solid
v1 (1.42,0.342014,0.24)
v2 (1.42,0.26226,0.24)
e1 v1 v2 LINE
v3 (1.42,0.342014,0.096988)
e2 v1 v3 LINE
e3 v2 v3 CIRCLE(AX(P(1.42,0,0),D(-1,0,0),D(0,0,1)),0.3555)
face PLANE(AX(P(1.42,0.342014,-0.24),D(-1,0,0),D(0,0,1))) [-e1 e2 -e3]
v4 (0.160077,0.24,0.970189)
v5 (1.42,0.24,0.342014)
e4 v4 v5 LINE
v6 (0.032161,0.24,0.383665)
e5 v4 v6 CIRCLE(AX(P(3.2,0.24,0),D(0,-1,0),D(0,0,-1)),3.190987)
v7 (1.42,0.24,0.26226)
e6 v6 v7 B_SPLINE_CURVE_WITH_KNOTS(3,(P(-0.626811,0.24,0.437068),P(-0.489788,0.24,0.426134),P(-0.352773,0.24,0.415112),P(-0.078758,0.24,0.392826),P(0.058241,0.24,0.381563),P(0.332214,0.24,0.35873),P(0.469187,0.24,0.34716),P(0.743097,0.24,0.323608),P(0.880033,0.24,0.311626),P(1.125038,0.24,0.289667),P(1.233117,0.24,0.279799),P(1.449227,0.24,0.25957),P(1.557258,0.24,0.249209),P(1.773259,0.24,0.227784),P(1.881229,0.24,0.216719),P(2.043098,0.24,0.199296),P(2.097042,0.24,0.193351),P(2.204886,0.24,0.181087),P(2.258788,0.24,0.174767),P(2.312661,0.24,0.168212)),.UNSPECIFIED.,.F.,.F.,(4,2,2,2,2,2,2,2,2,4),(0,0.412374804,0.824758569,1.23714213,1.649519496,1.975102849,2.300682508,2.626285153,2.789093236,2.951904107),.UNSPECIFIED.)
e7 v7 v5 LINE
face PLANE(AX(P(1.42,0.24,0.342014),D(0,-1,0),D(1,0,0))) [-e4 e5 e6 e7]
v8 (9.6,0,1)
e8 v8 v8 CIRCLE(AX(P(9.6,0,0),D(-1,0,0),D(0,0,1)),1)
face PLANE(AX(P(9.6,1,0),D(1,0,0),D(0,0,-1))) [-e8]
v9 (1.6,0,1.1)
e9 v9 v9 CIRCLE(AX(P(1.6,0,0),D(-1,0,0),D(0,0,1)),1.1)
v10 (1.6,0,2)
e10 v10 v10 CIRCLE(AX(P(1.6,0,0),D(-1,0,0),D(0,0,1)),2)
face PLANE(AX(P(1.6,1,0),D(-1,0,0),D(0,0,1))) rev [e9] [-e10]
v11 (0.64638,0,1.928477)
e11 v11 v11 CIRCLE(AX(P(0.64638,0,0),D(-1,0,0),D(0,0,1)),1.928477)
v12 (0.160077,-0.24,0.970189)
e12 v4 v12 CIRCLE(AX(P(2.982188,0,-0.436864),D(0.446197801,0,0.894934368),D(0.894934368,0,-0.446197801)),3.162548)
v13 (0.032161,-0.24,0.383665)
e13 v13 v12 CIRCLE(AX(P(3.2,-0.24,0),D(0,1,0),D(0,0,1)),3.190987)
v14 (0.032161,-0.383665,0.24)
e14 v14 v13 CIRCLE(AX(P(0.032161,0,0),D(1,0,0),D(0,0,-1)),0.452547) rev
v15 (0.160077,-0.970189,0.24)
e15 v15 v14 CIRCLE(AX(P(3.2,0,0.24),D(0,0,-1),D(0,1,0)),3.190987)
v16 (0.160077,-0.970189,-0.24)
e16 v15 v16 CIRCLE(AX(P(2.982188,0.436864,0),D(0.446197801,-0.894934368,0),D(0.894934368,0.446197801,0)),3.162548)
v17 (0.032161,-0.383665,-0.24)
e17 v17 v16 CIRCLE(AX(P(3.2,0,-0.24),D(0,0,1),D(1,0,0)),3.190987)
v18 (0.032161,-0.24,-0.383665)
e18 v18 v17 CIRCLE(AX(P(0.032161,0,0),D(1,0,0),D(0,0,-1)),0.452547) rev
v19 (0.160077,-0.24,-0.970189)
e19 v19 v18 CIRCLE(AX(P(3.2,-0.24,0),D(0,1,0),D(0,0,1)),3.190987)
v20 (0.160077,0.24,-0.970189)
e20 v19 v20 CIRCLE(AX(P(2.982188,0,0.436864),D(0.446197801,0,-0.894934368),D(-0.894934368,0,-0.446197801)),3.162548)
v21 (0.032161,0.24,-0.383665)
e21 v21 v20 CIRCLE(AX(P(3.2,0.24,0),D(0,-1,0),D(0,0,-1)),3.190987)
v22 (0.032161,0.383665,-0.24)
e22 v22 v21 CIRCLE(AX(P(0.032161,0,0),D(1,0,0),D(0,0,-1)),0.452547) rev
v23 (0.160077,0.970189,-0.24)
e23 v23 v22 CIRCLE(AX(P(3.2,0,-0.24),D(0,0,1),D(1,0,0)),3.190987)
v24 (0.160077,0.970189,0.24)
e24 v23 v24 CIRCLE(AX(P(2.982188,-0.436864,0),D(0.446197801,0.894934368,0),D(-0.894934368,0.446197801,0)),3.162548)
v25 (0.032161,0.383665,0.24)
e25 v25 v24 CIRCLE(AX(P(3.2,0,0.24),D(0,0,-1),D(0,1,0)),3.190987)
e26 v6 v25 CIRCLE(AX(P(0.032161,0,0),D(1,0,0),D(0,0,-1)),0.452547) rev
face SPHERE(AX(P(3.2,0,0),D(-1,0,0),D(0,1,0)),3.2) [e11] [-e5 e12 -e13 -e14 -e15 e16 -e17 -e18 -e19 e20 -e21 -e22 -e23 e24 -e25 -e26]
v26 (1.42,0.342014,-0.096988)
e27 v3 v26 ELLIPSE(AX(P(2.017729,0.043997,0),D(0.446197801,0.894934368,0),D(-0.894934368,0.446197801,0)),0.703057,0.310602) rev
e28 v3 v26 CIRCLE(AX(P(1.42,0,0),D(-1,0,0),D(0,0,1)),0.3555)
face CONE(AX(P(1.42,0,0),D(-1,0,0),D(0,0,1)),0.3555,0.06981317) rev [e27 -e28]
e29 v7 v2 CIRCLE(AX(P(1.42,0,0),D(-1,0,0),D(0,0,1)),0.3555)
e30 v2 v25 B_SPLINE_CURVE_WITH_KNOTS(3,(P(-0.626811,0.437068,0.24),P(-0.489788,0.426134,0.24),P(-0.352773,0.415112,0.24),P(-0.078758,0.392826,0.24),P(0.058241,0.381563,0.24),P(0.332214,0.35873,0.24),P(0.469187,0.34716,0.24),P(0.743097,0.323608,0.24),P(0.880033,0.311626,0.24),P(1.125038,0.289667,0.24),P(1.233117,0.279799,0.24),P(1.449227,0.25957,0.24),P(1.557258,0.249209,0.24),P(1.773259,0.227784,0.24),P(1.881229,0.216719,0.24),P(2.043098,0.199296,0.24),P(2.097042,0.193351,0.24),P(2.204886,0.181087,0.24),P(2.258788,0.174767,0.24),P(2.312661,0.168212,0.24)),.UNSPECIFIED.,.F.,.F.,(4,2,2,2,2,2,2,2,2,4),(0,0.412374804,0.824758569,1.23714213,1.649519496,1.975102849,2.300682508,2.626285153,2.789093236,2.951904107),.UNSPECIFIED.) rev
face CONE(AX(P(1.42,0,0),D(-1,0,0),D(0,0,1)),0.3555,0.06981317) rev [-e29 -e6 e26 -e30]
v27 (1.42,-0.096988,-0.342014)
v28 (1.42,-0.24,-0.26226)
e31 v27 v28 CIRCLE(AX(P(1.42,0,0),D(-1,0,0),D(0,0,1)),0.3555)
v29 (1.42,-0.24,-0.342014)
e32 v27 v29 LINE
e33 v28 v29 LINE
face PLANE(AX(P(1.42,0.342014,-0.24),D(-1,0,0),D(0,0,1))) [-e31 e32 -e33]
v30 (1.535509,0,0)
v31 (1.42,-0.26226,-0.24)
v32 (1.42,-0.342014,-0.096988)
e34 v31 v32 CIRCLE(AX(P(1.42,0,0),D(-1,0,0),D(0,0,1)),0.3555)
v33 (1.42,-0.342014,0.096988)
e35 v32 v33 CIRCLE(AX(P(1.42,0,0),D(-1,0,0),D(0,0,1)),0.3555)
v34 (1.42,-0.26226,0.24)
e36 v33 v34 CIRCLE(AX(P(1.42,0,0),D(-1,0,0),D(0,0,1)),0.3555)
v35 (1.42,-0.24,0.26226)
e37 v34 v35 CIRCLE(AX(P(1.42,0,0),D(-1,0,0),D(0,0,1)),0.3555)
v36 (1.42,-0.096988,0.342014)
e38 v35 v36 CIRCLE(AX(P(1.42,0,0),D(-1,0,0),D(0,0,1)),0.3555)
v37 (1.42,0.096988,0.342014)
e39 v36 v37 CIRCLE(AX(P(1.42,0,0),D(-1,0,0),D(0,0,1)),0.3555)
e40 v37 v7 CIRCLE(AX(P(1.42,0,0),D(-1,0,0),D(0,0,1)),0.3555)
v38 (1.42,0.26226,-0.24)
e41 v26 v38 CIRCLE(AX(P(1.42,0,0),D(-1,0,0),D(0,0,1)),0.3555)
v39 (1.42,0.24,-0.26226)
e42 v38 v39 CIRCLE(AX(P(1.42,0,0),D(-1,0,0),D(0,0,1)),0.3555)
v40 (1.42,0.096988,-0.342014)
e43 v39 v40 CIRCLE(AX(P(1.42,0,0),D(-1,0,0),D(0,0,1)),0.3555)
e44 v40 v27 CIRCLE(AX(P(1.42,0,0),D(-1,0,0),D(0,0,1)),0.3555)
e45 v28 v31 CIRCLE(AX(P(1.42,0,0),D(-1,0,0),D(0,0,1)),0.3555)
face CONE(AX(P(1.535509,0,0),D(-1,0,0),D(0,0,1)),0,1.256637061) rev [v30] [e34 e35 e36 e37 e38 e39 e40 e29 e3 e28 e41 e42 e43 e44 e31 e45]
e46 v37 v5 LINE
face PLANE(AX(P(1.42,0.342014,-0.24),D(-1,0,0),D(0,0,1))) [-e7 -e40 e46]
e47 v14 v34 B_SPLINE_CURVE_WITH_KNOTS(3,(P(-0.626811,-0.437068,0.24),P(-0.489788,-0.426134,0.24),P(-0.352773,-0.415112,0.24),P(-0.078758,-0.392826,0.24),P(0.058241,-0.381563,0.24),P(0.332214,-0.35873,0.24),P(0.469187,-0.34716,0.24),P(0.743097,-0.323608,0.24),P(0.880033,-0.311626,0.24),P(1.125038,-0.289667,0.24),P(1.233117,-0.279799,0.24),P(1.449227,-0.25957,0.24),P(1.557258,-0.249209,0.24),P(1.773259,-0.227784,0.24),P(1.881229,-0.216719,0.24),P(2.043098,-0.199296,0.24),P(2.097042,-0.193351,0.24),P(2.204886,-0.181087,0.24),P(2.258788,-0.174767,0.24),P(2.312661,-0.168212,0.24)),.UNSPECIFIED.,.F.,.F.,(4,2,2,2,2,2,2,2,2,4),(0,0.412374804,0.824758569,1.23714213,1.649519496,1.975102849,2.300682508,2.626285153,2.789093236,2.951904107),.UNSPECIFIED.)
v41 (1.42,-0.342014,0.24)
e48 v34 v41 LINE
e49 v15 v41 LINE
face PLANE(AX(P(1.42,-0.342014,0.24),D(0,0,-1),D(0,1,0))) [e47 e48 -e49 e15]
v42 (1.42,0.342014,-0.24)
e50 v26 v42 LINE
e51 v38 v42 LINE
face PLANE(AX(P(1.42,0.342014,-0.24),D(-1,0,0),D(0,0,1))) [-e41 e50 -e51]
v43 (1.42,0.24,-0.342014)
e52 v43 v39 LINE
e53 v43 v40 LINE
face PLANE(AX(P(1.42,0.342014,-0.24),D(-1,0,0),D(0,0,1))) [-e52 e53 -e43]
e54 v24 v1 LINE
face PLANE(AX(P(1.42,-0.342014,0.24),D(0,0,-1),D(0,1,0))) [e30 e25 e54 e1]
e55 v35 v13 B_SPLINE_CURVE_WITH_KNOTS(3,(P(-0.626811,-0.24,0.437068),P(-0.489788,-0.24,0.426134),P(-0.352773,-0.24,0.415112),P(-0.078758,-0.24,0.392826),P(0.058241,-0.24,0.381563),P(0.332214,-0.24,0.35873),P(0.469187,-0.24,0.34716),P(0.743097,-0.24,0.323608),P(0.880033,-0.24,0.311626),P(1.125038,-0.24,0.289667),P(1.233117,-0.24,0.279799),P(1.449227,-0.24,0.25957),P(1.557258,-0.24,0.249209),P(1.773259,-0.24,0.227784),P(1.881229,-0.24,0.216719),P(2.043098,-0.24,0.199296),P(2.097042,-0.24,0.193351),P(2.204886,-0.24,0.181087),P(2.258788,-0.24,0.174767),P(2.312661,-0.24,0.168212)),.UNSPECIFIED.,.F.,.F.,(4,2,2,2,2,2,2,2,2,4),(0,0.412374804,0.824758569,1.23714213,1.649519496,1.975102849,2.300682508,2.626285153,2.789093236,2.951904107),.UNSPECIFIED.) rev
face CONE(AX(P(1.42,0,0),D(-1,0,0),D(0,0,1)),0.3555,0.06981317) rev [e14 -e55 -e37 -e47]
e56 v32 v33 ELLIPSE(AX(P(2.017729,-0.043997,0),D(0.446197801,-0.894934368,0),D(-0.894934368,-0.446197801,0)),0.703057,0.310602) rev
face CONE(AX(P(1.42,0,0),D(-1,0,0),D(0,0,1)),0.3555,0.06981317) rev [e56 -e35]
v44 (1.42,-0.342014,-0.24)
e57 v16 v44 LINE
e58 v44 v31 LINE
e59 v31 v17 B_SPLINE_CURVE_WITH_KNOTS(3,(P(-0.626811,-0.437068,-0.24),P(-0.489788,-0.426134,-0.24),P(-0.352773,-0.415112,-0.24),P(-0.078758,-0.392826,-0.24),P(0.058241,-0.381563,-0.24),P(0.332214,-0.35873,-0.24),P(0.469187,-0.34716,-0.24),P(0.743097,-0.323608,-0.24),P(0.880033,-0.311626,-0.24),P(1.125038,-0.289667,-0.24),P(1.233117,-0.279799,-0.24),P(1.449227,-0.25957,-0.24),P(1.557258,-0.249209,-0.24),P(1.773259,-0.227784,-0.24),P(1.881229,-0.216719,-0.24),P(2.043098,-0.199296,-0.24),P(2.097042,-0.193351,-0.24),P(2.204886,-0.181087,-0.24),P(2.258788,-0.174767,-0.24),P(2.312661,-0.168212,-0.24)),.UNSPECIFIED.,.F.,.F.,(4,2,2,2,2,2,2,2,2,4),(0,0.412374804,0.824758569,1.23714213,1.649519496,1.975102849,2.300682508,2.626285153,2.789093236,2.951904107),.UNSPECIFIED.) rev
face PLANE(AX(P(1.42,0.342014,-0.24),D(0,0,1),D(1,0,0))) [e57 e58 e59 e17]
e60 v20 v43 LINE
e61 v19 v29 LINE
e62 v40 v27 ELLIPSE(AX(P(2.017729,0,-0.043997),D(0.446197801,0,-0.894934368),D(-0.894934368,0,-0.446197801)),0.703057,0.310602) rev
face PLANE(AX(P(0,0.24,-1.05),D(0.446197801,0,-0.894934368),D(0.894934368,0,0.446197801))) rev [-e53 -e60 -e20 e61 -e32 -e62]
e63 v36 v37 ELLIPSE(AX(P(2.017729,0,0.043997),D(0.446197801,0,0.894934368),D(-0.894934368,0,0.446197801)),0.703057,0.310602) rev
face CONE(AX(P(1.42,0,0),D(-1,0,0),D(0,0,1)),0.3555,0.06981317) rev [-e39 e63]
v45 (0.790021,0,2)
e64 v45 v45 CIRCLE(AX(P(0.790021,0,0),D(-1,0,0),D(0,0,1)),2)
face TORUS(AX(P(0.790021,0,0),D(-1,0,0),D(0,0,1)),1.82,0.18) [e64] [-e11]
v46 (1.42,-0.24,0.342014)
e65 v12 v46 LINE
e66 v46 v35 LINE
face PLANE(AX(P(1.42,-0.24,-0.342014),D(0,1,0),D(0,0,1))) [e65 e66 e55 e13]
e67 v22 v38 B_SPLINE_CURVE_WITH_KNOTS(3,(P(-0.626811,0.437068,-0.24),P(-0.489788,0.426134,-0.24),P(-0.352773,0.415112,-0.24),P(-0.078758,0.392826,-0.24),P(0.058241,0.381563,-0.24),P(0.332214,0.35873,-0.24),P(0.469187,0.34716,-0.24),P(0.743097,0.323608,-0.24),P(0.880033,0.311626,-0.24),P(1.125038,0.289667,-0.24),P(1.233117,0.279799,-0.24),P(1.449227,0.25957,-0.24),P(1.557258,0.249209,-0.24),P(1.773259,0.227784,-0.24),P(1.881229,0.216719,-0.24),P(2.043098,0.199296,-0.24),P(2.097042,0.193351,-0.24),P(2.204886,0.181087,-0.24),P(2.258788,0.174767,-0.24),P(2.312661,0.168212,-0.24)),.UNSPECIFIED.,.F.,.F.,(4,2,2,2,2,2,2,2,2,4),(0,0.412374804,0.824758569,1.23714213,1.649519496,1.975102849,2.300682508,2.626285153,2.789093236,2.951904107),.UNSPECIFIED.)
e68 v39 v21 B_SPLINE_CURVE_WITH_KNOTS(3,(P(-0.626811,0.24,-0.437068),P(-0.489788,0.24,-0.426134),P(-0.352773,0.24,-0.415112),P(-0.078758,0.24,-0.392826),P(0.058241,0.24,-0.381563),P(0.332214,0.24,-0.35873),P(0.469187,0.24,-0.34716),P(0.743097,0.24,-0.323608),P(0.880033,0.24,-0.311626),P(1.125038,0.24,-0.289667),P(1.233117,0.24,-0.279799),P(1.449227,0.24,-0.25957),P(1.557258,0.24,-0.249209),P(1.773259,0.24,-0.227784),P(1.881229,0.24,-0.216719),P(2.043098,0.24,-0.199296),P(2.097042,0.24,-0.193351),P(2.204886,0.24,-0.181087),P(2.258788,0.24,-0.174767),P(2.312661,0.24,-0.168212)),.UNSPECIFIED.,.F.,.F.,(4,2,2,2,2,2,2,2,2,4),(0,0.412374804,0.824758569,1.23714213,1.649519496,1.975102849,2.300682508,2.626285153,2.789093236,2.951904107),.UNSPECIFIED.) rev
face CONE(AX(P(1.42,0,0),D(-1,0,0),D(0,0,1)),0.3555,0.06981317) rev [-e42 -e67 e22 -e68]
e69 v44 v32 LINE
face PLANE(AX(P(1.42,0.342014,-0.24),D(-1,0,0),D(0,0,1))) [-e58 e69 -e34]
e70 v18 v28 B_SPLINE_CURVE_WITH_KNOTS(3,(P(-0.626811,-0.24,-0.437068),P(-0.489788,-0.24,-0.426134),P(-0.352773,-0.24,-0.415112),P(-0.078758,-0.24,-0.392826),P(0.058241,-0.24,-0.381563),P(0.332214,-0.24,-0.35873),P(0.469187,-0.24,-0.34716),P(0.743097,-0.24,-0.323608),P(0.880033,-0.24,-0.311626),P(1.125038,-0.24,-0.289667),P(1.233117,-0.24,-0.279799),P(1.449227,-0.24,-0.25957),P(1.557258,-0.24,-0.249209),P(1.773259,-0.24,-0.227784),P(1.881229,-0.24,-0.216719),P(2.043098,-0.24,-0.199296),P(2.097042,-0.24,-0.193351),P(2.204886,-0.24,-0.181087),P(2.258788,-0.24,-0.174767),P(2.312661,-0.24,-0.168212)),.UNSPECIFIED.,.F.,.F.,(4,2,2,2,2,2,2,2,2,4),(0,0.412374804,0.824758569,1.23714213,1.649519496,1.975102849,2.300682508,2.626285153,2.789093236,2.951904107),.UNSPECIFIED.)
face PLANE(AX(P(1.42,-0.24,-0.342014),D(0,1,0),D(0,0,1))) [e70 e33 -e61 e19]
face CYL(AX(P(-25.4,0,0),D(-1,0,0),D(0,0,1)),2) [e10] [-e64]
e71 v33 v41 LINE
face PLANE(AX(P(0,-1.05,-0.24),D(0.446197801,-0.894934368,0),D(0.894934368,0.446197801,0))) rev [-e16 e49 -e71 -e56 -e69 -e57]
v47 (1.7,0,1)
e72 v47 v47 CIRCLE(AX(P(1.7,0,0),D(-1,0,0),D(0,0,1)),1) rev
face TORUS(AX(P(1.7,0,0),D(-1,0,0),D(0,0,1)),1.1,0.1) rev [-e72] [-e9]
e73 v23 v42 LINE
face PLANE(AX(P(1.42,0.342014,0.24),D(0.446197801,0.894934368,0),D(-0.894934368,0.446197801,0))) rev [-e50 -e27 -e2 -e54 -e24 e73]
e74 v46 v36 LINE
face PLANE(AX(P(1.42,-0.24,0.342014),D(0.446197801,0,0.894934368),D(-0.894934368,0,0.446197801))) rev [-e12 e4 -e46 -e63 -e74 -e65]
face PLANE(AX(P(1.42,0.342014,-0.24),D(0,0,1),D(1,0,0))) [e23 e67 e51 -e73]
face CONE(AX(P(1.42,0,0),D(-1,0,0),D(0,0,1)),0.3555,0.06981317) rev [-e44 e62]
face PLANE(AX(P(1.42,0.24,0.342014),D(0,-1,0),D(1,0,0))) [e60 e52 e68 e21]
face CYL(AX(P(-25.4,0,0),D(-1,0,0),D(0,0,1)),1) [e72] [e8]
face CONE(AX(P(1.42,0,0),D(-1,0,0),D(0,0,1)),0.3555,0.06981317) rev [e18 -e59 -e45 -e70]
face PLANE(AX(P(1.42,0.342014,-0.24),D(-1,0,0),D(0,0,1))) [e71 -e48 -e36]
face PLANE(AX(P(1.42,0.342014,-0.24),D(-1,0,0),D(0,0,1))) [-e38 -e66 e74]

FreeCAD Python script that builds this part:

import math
import FreeCAD as App
import Part
import Sketcher
Q = App.Units.Quantity


def edges_at(feature, points):
    """Names of the edges that pass closest to the given points."""
    edges = feature.Shape.Edges
    near = lambda p: min(range(len(edges)), key=lambda i: edges[i].distToShape(Part.Vertex(*p))[0])
    return sorted({f"Edge{near(p) + 1}" for p in points})

doc = App.newDocument("Part")
body = doc.addObject("PartDesign::Body", "Body")

sketch1 = body.newObject("Sketcher::SketchObject", "Sketch")
sketch1.AttachmentSupport = (doc.getObject("XY_Plane"), [""])
sketch1.MapMode = "FlatFace"
sketch1.addGeometry(Part.LineSegment(App.Vector(1.6, 1, 0), App.Vector(1.6, 2, 0)), False)
sketch1.addGeometry(Part.LineSegment(App.Vector(1.6, 2, 0), App.Vector(0.790021, 2, 0)), False)
sketch1.addGeometry(Part.ArcOfCircle(Part.Circle(App.Vector(0.790021, 1.82, 0), App.Vector(0, 0, 1), 0.18), math.radians(90), math.radians(142.940145)), False)
sketch1.addGeometry(Part.ArcOfCircle(Part.Circle(App.Vector(3.2, 0, 0), App.Vector(0, 0, 1), 3.2), math.radians(142.940145), math.radians(180)), False)
sketch1.addGeometry(Part.LineSegment(App.Vector(0, 0, 0), App.Vector(9.6, 0, 0)), False)
sketch1.addGeometry(Part.LineSegment(App.Vector(9.6, 0, 0), App.Vector(9.6, 1, 0)), False)
sketch1.addGeometry(Part.LineSegment(App.Vector(9.6, 1, 0), App.Vector(1.6, 1, 0)), False)
sketch1.addConstraint(Sketcher.Constraint("Coincident", 0, 2, 1, 1))
sketch1.addConstraint(Sketcher.Constraint("Tangent", 1, 2, 2, 1))
sketch1.addConstraint(Sketcher.Constraint("Tangent", 2, 2, 3, 1))
sketch1.addConstraint(Sketcher.Constraint("Coincident", 3, 2, 4, 1))
sketch1.addConstraint(Sketcher.Constraint("Coincident", 4, 2, 5, 1))
sketch1.addConstraint(Sketcher.Constraint("Coincident", 5, 2, 6, 1))
sketch1.addConstraint(Sketcher.Constraint("Coincident", 6, 2, 0, 1))
sketch1.addConstraint(Sketcher.Constraint("Vertical", 0))
sketch1.addConstraint(Sketcher.Constraint("Horizontal", 1))
sketch1.addConstraint(Sketcher.Constraint("Horizontal", 4))
sketch1.addConstraint(Sketcher.Constraint("Vertical", 5))
sketch1.addConstraint(Sketcher.Constraint("Horizontal", 6))
sketch1.addConstraint(Sketcher.Constraint("Coincident", 3, 2, -1, 1))
sketch1.addConstraint(Sketcher.Constraint("PointOnObject", 3, 3, -1))
sketch1.addConstraint(Sketcher.Constraint("Equal", 0, 5))
sketch1.addConstraint(Sketcher.Constraint("Radius", 3, Q("3.2 mm")))
sketch1.addConstraint(Sketcher.Constraint("DistanceX", 6, 2, 6, 1, Q("8 mm")))
sketch1.addConstraint(Sketcher.Constraint("DistanceY", 0, 1, 0, 2, Q("1 mm")))
sketch1.addConstraint(Sketcher.Constraint("Radius", 2, Q("0.18 mm")))
sketch1.addConstraint(Sketcher.Constraint("DistanceX", 4, 1, 4, 2, Q("9.6 mm")))
revolution = body.newObject("PartDesign::Revolution", "Revolution")
revolution.Profile = sketch1
revolution.ReferenceAxis = (sketch1, ["H_Axis"])
revolution.Angle = 360
doc.recompute()

fillet = body.newObject("PartDesign::Fillet", "Fillet")
fillet.Base = (revolution, edges_at(revolution, [(1.6, 0, -1)]))
fillet.Radius = 0.1

sketch2 = body.newObject("Sketcher::SketchObject", "Sketch001")
sketch2.AttachmentSupport = (doc.getObject("YZ_Plane"), [""])
sketch2.MapMode = "FlatFace"
sketch2.addGeometry(Part.LineSegment(App.Vector(1.05, 0.24, 0), App.Vector(-1.05, 0.24, 0)), False)
sketch2.addGeometry(Part.LineSegment(App.Vector(-1.05, 0.24, 0), App.Vector(-1.05, -0.24, 0)), False)
sketch2.addGeometry(Part.LineSegment(App.Vector(-1.05, -0.24, 0), App.Vector(1.05, -0.24, 0)), False)
sketch2.addGeometry(Part.LineSegment(App.Vector(1.05, -0.24, 0), App.Vector(1.05, 0.24, 0)), False)
sketch2.addConstraint(Sketcher.Constraint("Coincident", 0, 2, 1, 1))
sketch2.addConstraint(Sketcher.Constraint("Coincident", 1, 2, 2, 1))
sketch2.addConstraint(Sketcher.Constraint("Coincident", 2, 2, 3, 1))
sketch2.addConstraint(Sketcher.Constraint("Coincident", 3, 2, 0, 1))
sketch2.addConstraint(Sketcher.Constraint("Horizontal", 0))
sketch2.addConstraint(Sketcher.Constraint("Vertical", 1))
sketch2.addConstraint(Sketcher.Constraint("Horizontal", 2))
sketch2.addConstraint(Sketcher.Constraint("Vertical", 3))
sketch2.addConstraint(Sketcher.Constraint("Symmetric", 0, 2, 2, 2, -1, 1))
sketch2.addConstraint(Sketcher.Constraint("DistanceX", 0, 2, 0, 1, Q("2.1 mm")))
sketch2.addConstraint(Sketcher.Constraint("DistanceY", 1, 2, 1, 1, Q("0.48 mm")))

sketch3 = body.newObject("Sketcher::SketchObject", "Sketch002")
sketch3.AttachmentSupport = (doc.getObject("YZ_Plane"), [""])
sketch3.MapMode = "FlatFace"
sketch3.AttachmentOffset = App.Placement(App.Vector(0, 0, 1.42), App.Rotation())
sketch3.addGeometry(Part.LineSegment(App.Vector(0.342014, 0.24, 0), App.Vector(-0.342014, 0.24, 0)), False)
sketch3.addGeometry(Part.LineSegment(App.Vector(-0.342014, 0.24, 0), App.Vector(-0.342014, -0.24, 0)), False)
sketch3.addGeometry(Part.LineSegment(App.Vector(-0.342014, -0.24, 0), App.Vector(0.342014, -0.24, 0)), False)
sketch3.addGeometry(Part.LineSegment(App.Vector(0.342014, -0.24, 0), App.Vector(0.342014, 0.24, 0)), False)
sketch3.addConstraint(Sketcher.Constraint("Coincident", 0, 2, 1, 1))
sketch3.addConstraint(Sketcher.Constraint("Coincident", 1, 2, 2, 1))
sketch3.addConstraint(Sketcher.Constraint("Coincident", 2, 2, 3, 1))
sketch3.addConstraint(Sketcher.Constraint("Coincident", 3, 2, 0, 1))
sketch3.addConstraint(Sketcher.Constraint("Horizontal", 0))
sketch3.addConstraint(Sketcher.Constraint("Vertical", 1))
sketch3.addConstraint(Sketcher.Constraint("Horizontal", 2))
sketch3.addConstraint(Sketcher.Constraint("Vertical", 3))
sketch3.addConstraint(Sketcher.Constraint("Symmetric", 0, 2, 2, 2, -1, 1))
sketch3.addConstraint(Sketcher.Constraint("DistanceY", 1, 2, 1, 1, Q("0.48 mm")))
sketch3.addConstraint(Sketcher.Constraint("DistanceX", 0, 2, 0, 1, Q("0.684028 mm")))

subtractiveloft = body.newObject("PartDesign::SubtractiveLoft", "SubtractiveLoft")
subtractiveloft.Profile = sketch2
subtractiveloft.Sections = [sketch3]
doc.recompute()

polarpattern = body.newObject("PartDesign::PolarPattern", "PolarPattern")
polarpattern.Originals = [subtractiveloft]
polarpattern.Axis = (doc.getObject("X_Axis"), [""])
polarpattern.Angle = 90
polarpattern.Occurrences = 2
body.Tip = polarpattern

sketch4 = body.newObject("Sketcher::SketchObject", "Sketch003")
sketch4.AttachmentSupport = (doc.getObject("XY_Plane"), [""])
sketch4.MapMode = "FlatFace"
sketch4.addGeometry(Part.LineSegment(App.Vector(0, 0.454796, 0), App.Vector(0, 0, 0)), False)
sketch4.addGeometry(Part.LineSegment(App.Vector(0, 0, 0), App.Vector(1.535509, 0, 0)), False)
sketch4.addGeometry(Part.LineSegment(App.Vector(1.535509, 0, 0), App.Vector(1.42, 0.3555, 0)), False)
sketch4.addGeometry(Part.LineSegment(App.Vector(1.42, 0.3555, 0), App.Vector(0, 0.454796, 0)), False)
sketch4.addConstraint(Sketcher.Constraint("Coincident", 0, 2, 1, 1))
sketch4.addConstraint(Sketcher.Constraint("Coincident", 1, 2, 2, 1))
sketch4.addConstraint(Sketcher.Constraint("Coincident", 2, 2, 3, 1))
sketch4.addConstraint(Sketcher.Constraint("Coincident", 3, 2, 0, 1))
sketch4.addConstraint(Sketcher.Constraint("Vertical", 0))
sketch4.addConstraint(Sketcher.Constraint("Horizontal", 1))
sketch4.addConstraint(Sketcher.Constraint("Coincident", 0, 2, -1, 1))
sketch4.addConstraint(Sketcher.Constraint("Angle", 2, Q("108 deg")))
sketch4.addConstraint(Sketcher.Constraint("Angle", 3, Q("176 deg")))
sketch4.addConstraint(Sketcher.Constraint("DistanceX", -1, 1, 2, 2, Q("1.42 mm")))
sketch4.addConstraint(Sketcher.Constraint("DistanceX", 1, 1, 1, 2, Q("1.535509 mm")))
groove = body.newObject("PartDesign::Groove", "Groove")
groove.Profile = sketch4
groove.ReferenceAxis = (sketch4, ["H_Axis"])
groove.Angle = 360

doc.recompute()
